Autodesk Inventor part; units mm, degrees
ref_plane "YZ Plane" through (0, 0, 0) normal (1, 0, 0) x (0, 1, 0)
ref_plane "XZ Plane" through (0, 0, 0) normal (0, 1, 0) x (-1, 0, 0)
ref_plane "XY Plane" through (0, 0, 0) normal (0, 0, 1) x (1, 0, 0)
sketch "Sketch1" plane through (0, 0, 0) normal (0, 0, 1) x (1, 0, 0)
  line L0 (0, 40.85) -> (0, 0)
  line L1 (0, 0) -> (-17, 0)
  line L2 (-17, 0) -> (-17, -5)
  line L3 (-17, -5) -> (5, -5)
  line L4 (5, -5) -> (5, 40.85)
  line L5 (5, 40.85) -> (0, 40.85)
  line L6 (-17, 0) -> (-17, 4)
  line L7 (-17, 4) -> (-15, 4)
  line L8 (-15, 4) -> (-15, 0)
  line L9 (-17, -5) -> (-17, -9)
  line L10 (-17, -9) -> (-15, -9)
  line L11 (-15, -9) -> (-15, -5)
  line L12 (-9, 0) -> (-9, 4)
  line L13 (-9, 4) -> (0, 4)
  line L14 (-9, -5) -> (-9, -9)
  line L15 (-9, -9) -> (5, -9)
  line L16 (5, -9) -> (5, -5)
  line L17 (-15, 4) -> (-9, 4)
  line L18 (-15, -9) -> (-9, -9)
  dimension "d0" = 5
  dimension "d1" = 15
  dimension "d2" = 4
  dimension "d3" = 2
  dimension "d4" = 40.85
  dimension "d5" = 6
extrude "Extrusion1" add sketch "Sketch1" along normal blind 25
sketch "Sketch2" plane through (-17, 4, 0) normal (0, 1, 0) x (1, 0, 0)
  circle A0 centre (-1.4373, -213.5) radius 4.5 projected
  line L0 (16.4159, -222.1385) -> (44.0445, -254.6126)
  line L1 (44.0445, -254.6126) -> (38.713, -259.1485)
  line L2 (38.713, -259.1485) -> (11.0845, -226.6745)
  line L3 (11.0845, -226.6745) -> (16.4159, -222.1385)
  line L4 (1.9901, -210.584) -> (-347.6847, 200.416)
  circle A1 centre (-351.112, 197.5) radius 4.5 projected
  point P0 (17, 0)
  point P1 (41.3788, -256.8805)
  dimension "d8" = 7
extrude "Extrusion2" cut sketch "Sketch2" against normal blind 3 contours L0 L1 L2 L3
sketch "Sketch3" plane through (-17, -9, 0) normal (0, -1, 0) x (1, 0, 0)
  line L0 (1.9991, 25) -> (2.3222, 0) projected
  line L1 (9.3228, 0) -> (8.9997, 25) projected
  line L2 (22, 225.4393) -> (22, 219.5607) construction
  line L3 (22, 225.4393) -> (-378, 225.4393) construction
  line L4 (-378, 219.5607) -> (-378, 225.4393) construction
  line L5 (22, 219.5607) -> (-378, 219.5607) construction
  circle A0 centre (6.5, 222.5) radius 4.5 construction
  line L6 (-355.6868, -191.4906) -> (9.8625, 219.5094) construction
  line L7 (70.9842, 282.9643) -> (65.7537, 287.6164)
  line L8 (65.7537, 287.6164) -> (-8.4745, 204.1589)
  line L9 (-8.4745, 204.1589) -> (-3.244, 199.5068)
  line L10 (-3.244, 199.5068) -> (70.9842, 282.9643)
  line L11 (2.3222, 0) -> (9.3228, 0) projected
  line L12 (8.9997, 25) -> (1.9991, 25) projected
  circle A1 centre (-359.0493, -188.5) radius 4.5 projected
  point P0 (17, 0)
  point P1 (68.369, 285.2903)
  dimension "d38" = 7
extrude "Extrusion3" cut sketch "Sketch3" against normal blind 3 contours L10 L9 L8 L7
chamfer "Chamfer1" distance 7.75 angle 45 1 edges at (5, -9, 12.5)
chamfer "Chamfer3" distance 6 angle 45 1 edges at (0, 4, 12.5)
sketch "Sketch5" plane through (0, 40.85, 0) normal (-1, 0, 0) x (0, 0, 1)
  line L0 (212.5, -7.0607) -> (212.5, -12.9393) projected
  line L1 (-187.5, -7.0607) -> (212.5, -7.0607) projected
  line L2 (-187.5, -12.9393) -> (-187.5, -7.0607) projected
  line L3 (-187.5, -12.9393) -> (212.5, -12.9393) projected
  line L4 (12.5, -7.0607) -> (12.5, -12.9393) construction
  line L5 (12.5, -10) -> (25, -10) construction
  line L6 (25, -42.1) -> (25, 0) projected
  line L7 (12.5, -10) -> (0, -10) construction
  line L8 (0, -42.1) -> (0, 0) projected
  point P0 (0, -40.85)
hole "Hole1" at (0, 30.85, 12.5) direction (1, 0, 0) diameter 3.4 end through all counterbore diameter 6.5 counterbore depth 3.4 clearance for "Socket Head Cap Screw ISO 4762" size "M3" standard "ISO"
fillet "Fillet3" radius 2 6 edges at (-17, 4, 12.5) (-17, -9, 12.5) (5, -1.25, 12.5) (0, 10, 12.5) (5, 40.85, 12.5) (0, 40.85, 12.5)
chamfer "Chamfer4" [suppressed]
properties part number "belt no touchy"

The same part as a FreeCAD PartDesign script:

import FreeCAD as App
import Part
import Sketcher
from FreeCAD import Vector
Q = App.Units.Quantity


def edges_at(feature, points):
    """Names of the edges that pass closest to the given points."""
    edges = feature.Shape.Edges
    near = lambda p: min(range(len(edges)), key=lambda i: edges[i].distToShape(Part.Vertex(*p))[0])
    return sorted({f"Edge{near(p) + 1}" for p in points})


def add_polygon(sketch, points):
    """Adds a closed chain of lines whose ends are joined by coincident constraints."""
    first, n = sketch.GeometryCount, len(points)
    for a, b in zip(points, points[1:] + points[:1]):
        sketch.addGeometry(Part.LineSegment(App.Vector(*a, 0), App.Vector(*b, 0)), False)
    for i in range(n):
        sketch.addConstraint(Sketcher.Constraint("Coincident", first + i, 2, first + (i + 1) % n, 1))

doc = App.newDocument("Part")
params = doc.addObject("Spreadsheet::Sheet", "Params")
for row, (alias, value) in enumerate([
    ("sketch1_width", "5 mm"),
    ("sketch1_width2", "17 mm"),
    ("sketch1_height", "13 mm"),
    ("pad1_length", "25 mm"),
    ("sketch2_length", "7 mm"),
    ("pocket1_length", "3 mm"),
    ("sketch3_length", "7 mm"),
    ("pocket2_length", "3 mm"),
    ("chamfer_size", "7.75 mm"),
    ("chamfer2_size", "6 mm"),
    ("sketch4_diameter", "3.4 mm"),
    ("hole_diameter", "3.4 mm"),
    ("hole_cbore_diameter", "6.5 mm"),
    ("hole_cbore_depth", "3.4 mm"),
    ("fillet_radius", "2 mm"),
], start=1):
    params.set(f"A{row}", alias)
    params.set(f"B{row}", "=" + value)
    params.setAlias(f"B{row}", alias)

body = doc.addObject("PartDesign::Body", "Body")

sketch1 = doc.addObject("Sketcher::SketchObject", "Sketch")
body.addObject(sketch1)
sketch1.AttachmentSupport = (doc.XY_Plane, [""])
sketch1.MapMode = "FlatFace"
add_polygon(sketch1, [(5, 41), (0, 41), (0, 4), (-17, 4), (-17, -9), (5, -9)])
sketch1.addConstraint([
    Sketcher.Constraint("Horizontal", 0),
    Sketcher.Constraint("Vertical", 1),
    Sketcher.Constraint("Horizontal", 2),
    Sketcher.Constraint("Vertical", 3),
    Sketcher.Constraint("Horizontal", 4),
    Sketcher.Constraint("Vertical", 5),
    Sketcher.Constraint("PointOnObject", 0, 2, -2),
    Sketcher.Constraint("DistanceX", 0, 2, 0, 1, 5.0),
    Sketcher.Constraint("DistanceY", -1, 1, 1, 2, 4.0),
    Sketcher.Constraint("DistanceX", 2, 2, 2, 1, 17.0),
    Sketcher.Constraint("DistanceY", 3, 2, 3, 1, 13.0),
    Sketcher.Constraint("DistanceY", -1, 1, 0, 2, 40.85),
])
sketch1.setExpression("Constraints[13]", "Params.sketch1_width")
sketch1.setExpression("Constraints[15]", "Params.sketch1_width2")
sketch1.setExpression("Constraints[16]", "Params.sketch1_height")
pad1 = doc.addObject("PartDesign::Pad", "Pad")
body.addObject(pad1)
pad1.Profile = sketch1
pad1.setExpression("Length", "Params.pad1_length")

sketch2 = doc.addObject("Sketcher::SketchObject", "Sketch001")
body.addObject(sketch2)
sketch2.AttachmentSupport = (doc.XZ_Plane, [""])
sketch2.MapMode = "FlatFace"
sketch2.AttachmentOffset = App.Placement(Vector(0, 0, -4), App.Rotation())
add_polygon(sketch2, [(27, 255), (-1, 222), (-6, 227), (22, 259)])
sketch2.addConstraint([
    Sketcher.Constraint("Perpendicular", 0, 1),
    Sketcher.Constraint("Perpendicular", 1, 2),
    Sketcher.Constraint("Perpendicular", 2, 3),
    Sketcher.Constraint("Distance", 1, 7.0),
    Sketcher.Constraint("Angle", 0, Q("-130.3908 deg")),
    Sketcher.Constraint("DistanceY", 0, 2, 2, 2, 37.01),
    Sketcher.Constraint("DistanceX", 0, 2, -1, 1, 0.584),
    Sketcher.Constraint("DistanceY", -1, 1, 0, 2, 222.1385),
])
sketch2.setExpression("Constraints[7]", "Params.sketch2_length")
pocket1 = doc.addObject("PartDesign::Pocket", "Pocket")
body.addObject(pocket1)
pocket1.Profile = sketch2
pocket1.setExpression("Length", "Params.pocket1_length")
pocket1.Reversed = True

sketch3 = doc.addObject("Sketcher::SketchObject", "Sketch002")
body.addObject(sketch3)
sketch3.AttachmentSupport = (doc.XZ_Plane, [""])
sketch3.MapMode = "FlatFace"
sketch3.AttachmentOffset = App.Placement(Vector(0, 0, 9), App.Rotation())
add_polygon(sketch3, [(-20, 200), (54, 283), (49, 288), (-25, 204)])
sketch3.addConstraint([
    Sketcher.Constraint("Perpendicular", 0, 1),
    Sketcher.Constraint("Perpendicular", 1, 2),
    Sketcher.Constraint("Perpendicular", 2, 3),
    Sketcher.Constraint("Distance", 1, 7.0),
    Sketcher.Constraint("Angle", 0, Q("48.3497 deg")),
    Sketcher.Constraint("DistanceY", -1, 1, 2, 2, 204.159),
    Sketcher.Constraint("DistanceX", 3, 2, -1, 1, 20.244),
    Sketcher.Constraint("Distance", 0, 111.6914),
])
sketch3.setExpression("Constraints[7]", "Params.sketch3_length")
pocket2 = doc.addObject("PartDesign::Pocket", "Pocket001")
body.addObject(pocket2)
pocket2.Profile = sketch3
pocket2.setExpression("Length", "Params.pocket2_length")
doc.recompute()

chamfer = doc.addObject("PartDesign::Chamfer", "Chamfer")
body.addObject(chamfer)
chamfer.Base = (pocket2, edges_at(pocket2, [(5, -9, 12.5)]))
chamfer.setExpression("Size", "Params.chamfer_size")
doc.recompute()

chamfer2 = doc.addObject("PartDesign::Chamfer", "Chamfer001")
body.addObject(chamfer2)
chamfer2.Base = (chamfer, edges_at(chamfer, [(0, 4, 12.5)]))
chamfer2.setExpression("Size", "Params.chamfer2_size")

sketch4 = doc.addObject("Sketcher::SketchObject", "Sketch003")
body.addObject(sketch4)
sketch4.AttachmentSupport = (doc.YZ_Plane, [""])
sketch4.MapMode = "FlatFace"
sketch4.addGeometry(Part.Circle(Vector(30.9, 12.5, 0), Vector(0, 0, 1), 1.7), False)
sketch4.addConstraint([
    Sketcher.Constraint("Diameter", 0, 3.4),
    Sketcher.Constraint("DistanceY", -1, 1, 0, 3, 12.5),
    Sketcher.Constraint("DistanceX", -1, 1, 0, 3, 30.85),
])
sketch4.setExpression("Constraints[0]", "Params.sketch4_diameter")
doc.recompute()
hole = doc.addObject("PartDesign::Hole", "Hole")
body.addObject(hole)
hole.Profile = sketch4
hole.ThreadType = "None"
hole.setExpression("Diameter", "Params.hole_diameter")
hole.DepthType = "ThroughAll"
hole.HoleCutType = "Counterbore"
hole.setExpression("HoleCutDiameter", "Params.hole_cbore_diameter")
hole.setExpression("HoleCutDepth", "Params.hole_cbore_depth")
hole.Reversed = True
doc.recompute()

fillet = doc.addObject("PartDesign::Fillet", "Fillet")
body.addObject(fillet)
fillet.Base = (hole, edges_at(hole, [
    (-17, 4, 12.5),
    (-17, -9, 12.5),
    (5, -1.25, 12.5),
    (0, 10, 12.5),
    (5, 40.85, 12.5),
    (0, 40.85, 12.5),
]))
fillet.setExpression("Radius", "Params.fillet_radius")

doc.recompute()
